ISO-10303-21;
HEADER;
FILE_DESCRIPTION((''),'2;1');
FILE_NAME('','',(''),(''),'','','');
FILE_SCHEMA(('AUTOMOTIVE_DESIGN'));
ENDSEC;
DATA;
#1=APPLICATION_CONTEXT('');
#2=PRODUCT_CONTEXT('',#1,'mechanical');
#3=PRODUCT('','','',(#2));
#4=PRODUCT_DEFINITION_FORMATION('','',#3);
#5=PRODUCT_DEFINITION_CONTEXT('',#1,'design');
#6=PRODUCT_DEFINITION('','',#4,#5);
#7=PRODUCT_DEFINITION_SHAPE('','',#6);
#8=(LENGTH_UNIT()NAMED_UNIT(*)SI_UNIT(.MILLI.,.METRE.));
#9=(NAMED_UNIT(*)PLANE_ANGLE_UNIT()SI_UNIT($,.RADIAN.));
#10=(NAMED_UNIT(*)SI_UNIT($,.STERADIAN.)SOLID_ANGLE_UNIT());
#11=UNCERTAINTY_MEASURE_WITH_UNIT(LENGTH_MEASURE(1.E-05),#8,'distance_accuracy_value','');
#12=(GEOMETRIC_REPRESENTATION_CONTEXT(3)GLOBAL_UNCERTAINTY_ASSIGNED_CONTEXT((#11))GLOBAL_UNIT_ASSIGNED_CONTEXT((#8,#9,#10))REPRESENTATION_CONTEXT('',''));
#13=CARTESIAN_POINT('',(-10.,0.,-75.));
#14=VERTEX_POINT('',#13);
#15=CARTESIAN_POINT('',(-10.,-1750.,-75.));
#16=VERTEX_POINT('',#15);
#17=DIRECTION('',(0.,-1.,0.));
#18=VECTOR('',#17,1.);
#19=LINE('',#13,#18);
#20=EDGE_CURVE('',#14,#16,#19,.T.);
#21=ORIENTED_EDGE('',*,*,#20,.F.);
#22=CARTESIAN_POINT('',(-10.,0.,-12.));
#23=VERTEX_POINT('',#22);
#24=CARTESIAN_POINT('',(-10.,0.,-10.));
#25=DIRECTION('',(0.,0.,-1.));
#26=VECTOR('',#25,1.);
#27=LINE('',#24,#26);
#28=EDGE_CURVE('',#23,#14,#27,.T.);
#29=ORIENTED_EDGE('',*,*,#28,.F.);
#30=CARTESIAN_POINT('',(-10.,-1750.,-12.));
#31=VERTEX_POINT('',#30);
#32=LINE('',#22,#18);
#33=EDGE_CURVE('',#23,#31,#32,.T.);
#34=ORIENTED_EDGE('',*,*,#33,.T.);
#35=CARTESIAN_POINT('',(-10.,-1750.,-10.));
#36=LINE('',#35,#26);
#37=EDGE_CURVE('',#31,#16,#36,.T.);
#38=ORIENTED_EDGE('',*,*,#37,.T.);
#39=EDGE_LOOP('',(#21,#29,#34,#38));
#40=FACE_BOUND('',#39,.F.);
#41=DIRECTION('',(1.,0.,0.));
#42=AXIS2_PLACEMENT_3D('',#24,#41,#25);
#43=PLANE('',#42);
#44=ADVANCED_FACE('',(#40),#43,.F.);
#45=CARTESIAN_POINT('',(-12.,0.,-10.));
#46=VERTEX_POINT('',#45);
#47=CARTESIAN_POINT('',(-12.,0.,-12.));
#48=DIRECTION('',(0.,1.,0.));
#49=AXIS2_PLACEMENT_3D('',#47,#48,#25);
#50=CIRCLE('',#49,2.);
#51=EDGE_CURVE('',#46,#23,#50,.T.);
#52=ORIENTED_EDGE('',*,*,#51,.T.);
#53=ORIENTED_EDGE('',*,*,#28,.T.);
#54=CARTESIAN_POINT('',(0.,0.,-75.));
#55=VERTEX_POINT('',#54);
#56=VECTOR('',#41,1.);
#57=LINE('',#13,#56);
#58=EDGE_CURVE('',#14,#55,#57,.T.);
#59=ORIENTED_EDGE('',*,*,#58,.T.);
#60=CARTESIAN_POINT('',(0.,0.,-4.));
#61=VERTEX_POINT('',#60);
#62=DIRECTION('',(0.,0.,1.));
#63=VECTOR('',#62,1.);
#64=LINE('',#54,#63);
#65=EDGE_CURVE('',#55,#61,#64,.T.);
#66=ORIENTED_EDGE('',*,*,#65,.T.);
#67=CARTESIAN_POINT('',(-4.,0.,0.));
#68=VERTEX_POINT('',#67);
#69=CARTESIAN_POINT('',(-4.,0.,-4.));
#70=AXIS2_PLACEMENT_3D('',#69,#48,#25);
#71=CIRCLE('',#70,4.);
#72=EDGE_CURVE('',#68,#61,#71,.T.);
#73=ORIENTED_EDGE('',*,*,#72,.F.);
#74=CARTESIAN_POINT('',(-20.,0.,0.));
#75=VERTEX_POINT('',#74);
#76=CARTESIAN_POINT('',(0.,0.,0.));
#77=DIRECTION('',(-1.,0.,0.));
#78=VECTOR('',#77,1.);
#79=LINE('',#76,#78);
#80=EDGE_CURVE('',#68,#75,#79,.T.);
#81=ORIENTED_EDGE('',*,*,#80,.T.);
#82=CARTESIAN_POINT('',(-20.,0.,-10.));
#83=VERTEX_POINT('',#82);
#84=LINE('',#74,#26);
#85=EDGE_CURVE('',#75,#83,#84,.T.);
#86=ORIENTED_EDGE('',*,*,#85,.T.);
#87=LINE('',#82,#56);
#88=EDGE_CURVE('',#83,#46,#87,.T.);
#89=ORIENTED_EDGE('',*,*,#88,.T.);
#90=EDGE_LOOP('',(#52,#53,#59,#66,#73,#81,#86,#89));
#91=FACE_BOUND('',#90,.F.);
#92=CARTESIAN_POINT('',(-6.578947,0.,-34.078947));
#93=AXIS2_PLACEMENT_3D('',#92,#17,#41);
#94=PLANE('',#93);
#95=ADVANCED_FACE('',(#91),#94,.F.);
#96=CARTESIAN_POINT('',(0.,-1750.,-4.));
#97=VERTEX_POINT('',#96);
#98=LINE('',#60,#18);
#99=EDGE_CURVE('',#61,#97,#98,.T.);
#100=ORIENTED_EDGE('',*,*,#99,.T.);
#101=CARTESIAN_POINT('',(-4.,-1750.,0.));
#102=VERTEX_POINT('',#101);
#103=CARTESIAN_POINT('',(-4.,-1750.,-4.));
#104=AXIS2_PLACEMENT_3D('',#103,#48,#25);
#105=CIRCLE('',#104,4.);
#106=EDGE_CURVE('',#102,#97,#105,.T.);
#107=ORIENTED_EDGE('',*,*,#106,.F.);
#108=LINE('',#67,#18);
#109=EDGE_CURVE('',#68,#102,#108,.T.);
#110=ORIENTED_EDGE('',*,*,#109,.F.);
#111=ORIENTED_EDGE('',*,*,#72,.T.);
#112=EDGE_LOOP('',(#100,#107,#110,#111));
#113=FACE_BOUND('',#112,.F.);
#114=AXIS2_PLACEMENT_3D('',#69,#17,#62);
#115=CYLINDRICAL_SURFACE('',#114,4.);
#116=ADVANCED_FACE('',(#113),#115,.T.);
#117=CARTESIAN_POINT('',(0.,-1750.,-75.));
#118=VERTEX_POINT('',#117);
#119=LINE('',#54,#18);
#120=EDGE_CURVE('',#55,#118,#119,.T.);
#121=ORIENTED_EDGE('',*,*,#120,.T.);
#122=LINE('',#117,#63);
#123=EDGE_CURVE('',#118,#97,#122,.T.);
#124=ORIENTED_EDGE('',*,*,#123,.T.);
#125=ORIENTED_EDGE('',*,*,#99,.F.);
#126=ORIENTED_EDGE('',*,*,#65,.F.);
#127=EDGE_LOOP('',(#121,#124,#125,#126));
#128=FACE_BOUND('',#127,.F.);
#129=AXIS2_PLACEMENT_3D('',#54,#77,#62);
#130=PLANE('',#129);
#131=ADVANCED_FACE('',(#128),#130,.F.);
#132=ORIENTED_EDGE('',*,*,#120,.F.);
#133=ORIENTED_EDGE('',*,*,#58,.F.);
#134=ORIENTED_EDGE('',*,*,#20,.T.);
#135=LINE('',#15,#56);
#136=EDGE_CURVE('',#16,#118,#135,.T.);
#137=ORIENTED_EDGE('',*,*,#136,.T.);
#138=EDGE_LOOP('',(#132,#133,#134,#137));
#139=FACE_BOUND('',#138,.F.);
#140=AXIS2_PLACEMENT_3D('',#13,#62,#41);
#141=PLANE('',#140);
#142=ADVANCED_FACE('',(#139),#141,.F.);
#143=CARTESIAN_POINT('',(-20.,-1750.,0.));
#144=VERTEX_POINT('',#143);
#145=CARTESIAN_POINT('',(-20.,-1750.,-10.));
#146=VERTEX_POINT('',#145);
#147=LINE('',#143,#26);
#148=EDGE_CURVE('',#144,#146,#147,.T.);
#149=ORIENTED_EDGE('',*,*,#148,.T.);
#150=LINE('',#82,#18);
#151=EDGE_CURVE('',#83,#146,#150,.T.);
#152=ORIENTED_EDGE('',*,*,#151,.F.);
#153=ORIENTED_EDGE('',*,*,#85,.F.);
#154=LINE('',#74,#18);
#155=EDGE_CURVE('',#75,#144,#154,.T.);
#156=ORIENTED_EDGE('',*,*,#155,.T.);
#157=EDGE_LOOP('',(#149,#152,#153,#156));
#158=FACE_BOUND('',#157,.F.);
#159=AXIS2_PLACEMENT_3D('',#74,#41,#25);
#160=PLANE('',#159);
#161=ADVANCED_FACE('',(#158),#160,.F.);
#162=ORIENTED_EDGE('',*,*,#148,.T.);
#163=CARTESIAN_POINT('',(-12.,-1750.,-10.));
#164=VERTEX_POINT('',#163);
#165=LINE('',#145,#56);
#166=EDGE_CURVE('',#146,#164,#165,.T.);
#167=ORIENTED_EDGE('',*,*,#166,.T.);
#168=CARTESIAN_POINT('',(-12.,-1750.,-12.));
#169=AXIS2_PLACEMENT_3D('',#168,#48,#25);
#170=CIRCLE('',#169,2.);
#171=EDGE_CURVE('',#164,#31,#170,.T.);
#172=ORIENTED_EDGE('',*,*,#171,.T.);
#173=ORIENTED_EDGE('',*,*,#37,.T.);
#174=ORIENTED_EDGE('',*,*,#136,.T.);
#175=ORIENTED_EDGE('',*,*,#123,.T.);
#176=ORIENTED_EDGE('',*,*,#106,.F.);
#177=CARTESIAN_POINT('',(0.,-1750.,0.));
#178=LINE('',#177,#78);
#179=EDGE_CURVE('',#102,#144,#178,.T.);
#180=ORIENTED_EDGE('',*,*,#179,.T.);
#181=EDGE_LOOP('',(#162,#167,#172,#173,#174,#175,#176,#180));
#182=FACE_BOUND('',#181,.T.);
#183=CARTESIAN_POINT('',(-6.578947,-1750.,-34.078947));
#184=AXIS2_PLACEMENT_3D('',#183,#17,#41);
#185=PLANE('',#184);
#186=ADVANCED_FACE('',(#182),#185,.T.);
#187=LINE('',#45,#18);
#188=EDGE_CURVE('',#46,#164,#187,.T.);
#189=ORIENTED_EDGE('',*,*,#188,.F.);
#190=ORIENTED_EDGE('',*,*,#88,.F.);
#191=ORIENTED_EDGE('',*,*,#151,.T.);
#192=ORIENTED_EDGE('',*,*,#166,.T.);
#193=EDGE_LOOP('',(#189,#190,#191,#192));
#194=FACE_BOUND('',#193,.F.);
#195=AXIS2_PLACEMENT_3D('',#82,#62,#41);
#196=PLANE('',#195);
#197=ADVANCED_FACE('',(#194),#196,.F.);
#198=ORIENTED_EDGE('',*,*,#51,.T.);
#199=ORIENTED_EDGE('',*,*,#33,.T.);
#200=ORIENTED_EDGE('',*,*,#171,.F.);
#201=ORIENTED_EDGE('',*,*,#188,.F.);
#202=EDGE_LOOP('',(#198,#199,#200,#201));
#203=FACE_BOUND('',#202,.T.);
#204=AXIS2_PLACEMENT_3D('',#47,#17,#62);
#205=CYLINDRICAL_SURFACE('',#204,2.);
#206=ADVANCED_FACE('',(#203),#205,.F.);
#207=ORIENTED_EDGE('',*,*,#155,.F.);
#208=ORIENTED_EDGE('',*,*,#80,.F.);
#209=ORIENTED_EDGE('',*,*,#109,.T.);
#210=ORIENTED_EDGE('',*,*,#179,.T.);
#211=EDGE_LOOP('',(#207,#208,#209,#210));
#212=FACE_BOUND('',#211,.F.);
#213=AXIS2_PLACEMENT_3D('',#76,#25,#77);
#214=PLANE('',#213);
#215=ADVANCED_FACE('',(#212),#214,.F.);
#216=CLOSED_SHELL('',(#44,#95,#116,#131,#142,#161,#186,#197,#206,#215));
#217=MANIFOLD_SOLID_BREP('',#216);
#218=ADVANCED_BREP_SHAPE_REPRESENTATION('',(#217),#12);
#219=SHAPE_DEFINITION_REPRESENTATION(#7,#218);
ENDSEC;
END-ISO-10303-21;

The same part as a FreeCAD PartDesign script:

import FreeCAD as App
import Part
import Sketcher
Q = App.Units.Quantity


def edges_at(feature, points):
    """Names of the edges that pass closest to the given points."""
    edges = feature.Shape.Edges
    near = lambda p: min(range(len(edges)), key=lambda i: edges[i].distToShape(Part.Vertex(*p))[0])
    return sorted({f"Edge{near(p) + 1}" for p in points})


def add_polygon(sketch, points):
    """Adds a closed chain of lines whose ends are joined by coincident constraints."""
    first, n = sketch.GeometryCount, len(points)
    for a, b in zip(points, points[1:] + points[:1]):
        sketch.addGeometry(Part.LineSegment(App.Vector(*a, 0), App.Vector(*b, 0)), False)
    for i in range(n):
        sketch.addConstraint(Sketcher.Constraint("Coincident", first + i, 2, first + (i + 1) % n, 1))

doc = App.newDocument("Part")
body = doc.addObject("PartDesign::Body", "Body")

# Sketch on XZ plane
sketch1 = doc.addObject("Sketcher::SketchObject", "Sketch")
body.addObject(sketch1)
sketch1.AttachmentSupport = (doc.XZ_Plane, [""])
sketch1.MapMode = "FlatFace"
add_polygon(sketch1, [(0, 0), (-20, 0), (-20, -10), (-10, -10), (-10, -75), (0, -75)])  # lines 0-5
sketch1.addConstraint([
    Sketcher.Constraint("Horizontal", 0),
    Sketcher.Constraint("Vertical", 1),
    Sketcher.Constraint("Horizontal", 2),
    Sketcher.Constraint("Vertical", 3),
    Sketcher.Constraint("Horizontal", 4),
    Sketcher.Constraint("Vertical", 5),
    Sketcher.Constraint("Coincident", 5, 2, -1, 1),
    Sketcher.Constraint("Equal", 2, 4),
    Sketcher.Constraint("Equal", 4, 1),
    Sketcher.Constraint("DistanceX", 0, 2, 0, 1, Q("20 mm")),
    Sketcher.Constraint("DistanceY", 3, 2, 3, 1, Q("65 mm")),
])
pad1 = doc.addObject("PartDesign::Pad", "Pad")
body.addObject(pad1)
pad1.Profile = sketch1
pad1.Length = 1750
doc.recompute()

fillet = doc.addObject("PartDesign::Fillet", "Fillet")
body.addObject(fillet)
fillet.Base = (pad1, edges_at(pad1, [(0, -875, 0)]))
fillet.Radius = 4
doc.recompute()

fillet2 = doc.addObject("PartDesign::Fillet", "Fillet001")
body.addObject(fillet2)
fillet2.Base = (fillet, edges_at(fillet, [(-10, -875, -10)]))
fillet2.Radius = 2

doc.recompute()
